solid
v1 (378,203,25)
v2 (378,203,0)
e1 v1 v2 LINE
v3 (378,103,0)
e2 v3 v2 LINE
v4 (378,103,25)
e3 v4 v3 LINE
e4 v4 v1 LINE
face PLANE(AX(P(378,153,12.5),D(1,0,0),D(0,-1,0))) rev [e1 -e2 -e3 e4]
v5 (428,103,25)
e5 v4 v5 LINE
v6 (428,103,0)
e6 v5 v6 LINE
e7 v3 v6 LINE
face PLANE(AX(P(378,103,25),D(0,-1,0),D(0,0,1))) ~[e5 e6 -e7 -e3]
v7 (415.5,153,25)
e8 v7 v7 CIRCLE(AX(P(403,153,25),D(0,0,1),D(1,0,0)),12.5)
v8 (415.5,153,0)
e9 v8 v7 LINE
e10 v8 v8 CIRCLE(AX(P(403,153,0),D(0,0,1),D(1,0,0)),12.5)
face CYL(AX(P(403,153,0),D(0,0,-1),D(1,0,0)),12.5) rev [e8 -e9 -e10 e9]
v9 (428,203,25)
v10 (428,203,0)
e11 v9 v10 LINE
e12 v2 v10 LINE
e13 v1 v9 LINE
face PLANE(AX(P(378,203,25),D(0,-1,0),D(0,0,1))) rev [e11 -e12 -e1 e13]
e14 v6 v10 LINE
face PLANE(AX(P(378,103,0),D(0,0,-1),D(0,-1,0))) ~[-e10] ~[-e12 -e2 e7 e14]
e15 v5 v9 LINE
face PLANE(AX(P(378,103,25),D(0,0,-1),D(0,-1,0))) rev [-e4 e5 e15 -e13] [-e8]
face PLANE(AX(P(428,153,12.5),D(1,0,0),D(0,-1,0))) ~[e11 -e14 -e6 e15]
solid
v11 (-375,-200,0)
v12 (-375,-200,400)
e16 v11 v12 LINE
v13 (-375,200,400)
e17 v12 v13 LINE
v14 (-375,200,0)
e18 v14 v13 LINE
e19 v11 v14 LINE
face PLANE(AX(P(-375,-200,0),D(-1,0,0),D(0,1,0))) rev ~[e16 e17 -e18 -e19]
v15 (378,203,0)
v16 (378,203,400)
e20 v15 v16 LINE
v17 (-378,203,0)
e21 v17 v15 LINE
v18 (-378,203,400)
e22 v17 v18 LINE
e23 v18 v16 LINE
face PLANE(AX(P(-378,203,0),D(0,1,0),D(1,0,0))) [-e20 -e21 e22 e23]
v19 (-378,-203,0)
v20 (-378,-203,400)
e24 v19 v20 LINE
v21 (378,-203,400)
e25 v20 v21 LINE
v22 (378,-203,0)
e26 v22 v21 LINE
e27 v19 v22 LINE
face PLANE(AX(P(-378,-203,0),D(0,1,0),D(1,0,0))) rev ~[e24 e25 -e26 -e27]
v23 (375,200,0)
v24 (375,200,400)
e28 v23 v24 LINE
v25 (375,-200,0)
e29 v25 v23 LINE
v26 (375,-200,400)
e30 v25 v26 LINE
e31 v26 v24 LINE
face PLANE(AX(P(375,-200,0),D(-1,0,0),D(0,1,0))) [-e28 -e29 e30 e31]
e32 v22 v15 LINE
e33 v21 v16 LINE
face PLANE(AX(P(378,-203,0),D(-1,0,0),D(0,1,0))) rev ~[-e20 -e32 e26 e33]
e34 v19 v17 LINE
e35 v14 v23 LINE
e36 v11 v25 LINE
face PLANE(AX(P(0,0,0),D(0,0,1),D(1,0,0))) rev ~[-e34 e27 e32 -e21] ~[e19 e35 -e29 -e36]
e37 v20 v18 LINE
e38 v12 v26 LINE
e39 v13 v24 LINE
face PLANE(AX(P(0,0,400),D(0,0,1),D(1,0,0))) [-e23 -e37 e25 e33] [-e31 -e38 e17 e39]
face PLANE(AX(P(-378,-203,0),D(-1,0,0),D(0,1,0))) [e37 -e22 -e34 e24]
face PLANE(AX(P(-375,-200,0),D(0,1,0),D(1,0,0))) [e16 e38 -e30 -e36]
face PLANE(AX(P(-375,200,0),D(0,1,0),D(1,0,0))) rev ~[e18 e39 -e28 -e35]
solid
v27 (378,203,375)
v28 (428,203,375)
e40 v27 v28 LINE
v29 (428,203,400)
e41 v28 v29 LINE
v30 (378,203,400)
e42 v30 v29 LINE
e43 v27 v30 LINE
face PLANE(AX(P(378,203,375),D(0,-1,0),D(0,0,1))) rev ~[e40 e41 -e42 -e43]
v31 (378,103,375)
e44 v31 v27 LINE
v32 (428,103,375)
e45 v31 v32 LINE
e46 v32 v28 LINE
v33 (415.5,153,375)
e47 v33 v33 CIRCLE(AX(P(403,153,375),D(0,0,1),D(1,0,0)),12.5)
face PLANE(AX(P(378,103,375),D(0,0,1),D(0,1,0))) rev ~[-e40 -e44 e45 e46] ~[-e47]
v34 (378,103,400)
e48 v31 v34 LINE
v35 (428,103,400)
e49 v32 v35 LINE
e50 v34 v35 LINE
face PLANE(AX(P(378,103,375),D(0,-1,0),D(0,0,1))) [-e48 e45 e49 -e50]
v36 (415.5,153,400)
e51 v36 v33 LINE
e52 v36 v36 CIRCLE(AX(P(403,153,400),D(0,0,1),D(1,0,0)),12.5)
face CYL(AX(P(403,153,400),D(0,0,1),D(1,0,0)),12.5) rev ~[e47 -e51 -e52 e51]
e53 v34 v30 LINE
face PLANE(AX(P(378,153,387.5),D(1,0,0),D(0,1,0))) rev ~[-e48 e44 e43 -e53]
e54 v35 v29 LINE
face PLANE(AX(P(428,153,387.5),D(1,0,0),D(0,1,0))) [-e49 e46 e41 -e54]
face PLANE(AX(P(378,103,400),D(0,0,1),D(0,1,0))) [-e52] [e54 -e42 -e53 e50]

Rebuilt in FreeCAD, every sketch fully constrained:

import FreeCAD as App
import Part
import Sketcher
from FreeCAD import Vector
Q = App.Units.Quantity

doc = App.newDocument("Part")
params = doc.addObject("Spreadsheet::Sheet", "Params")
for row, (alias, value) in enumerate([
    ("sketch1_width", "756 mm"),
    ("sketch1_width2", "750 mm"),
    ("sketch1_height", "406 mm"),
    ("sketch1_height2", "400 mm"),
    ("pad1_length", "400 mm"),
    ("sketch2_width", "100 mm"),
    ("sketch2_height", "25 mm"),
    ("pad2_length", "50 mm"),
    ("sketch3_diameter", "25 mm"),
    ("pocket1_length", "25 mm"),
], start=1):
    params.set(f"A{row}", alias)
    params.set(f"B{row}", "=" + value)
    params.setAlias(f"B{row}", alias)

body = doc.addObject("PartDesign::Body", "Body")

# Sketch on XY plane
sketch1 = body.newObject("Sketcher::SketchObject", "Sketch")
sketch1.AttachmentSupport = (doc.getObject("XY_Plane"), [""])
sketch1.MapMode = "FlatFace"
sketch1.addGeometry([
    Part.LineSegment(Vector(-378, 203, 0), Vector(-378, -203, 0)),  # 0
    Part.LineSegment(Vector(-378, -203, 0), Vector(378, -203, 0)),  # 1
    Part.LineSegment(Vector(378, -203, 0), Vector(378, 203, 0)),  # 2
    Part.LineSegment(Vector(378, 203, 0), Vector(-378, 203, 0)),  # 3
    Part.LineSegment(Vector(375, -200, 0), Vector(-375, -200, 0)),  # 4
    Part.LineSegment(Vector(-375, -200, 0), Vector(-375, 200, 0)),  # 5
    Part.LineSegment(Vector(-375, 200, 0), Vector(375, 200, 0)),  # 6
    Part.LineSegment(Vector(375, 200, 0), Vector(375, -200, 0)),  # 7
], False)
sketch1.addConstraint([
    Sketcher.Constraint("Coincident", 0, 2, 1, 1),
    Sketcher.Constraint("Coincident", 1, 2, 2, 1),
    Sketcher.Constraint("Coincident", 2, 2, 3, 1),
    Sketcher.Constraint("Coincident", 3, 2, 0, 1),
    Sketcher.Constraint("Coincident", 4, 2, 5, 1),
    Sketcher.Constraint("Coincident", 5, 2, 6, 1),
    Sketcher.Constraint("Coincident", 6, 2, 7, 1),
    Sketcher.Constraint("Coincident", 7, 2, 4, 1),
    Sketcher.Constraint("Vertical", 0),
    Sketcher.Constraint("Horizontal", 1),
    Sketcher.Constraint("Vertical", 2),
    Sketcher.Constraint("Horizontal", 3),
    Sketcher.Constraint("Horizontal", 4),
    Sketcher.Constraint("Vertical", 5),
    Sketcher.Constraint("Horizontal", 6),
    Sketcher.Constraint("Vertical", 7),
    Sketcher.Constraint("Symmetric", 0, 2, 2, 2, -1, 1),
    Sketcher.Constraint("Symmetric", 4, 2, 6, 2, -1, 1),
    Sketcher.Constraint("DistanceX", 1, 1, 1, 2, Q("756 mm")),
    Sketcher.Constraint("DistanceX", 4, 2, 4, 1, Q("750 mm")),
    Sketcher.Constraint("DistanceY", 0, 2, 0, 1, Q("406 mm")),
    Sketcher.Constraint("DistanceY", 5, 1, 5, 2, Q("400 mm")),
])
sketch1.setExpression("Constraints[18]", "Params.sketch1_width")
sketch1.setExpression("Constraints[19]", "Params.sketch1_width2")
sketch1.setExpression("Constraints[20]", "Params.sketch1_height")
sketch1.setExpression("Constraints[21]", "Params.sketch1_height2")
pad1 = body.newObject("PartDesign::Pad", "Pad")
pad1.Profile = sketch1
pad1.setExpression("Length", "Params.pad1_length")
body2 = doc.addObject("PartDesign::Body", "Body001")

# Sketch on YZ plane
sketch2 = body2.newObject("Sketcher::SketchObject", "Sketch001")
sketch2.AttachmentSupport = (doc.getObject("YZ_Plane001"), [""])
sketch2.MapMode = "FlatFace"
sketch2.AttachmentOffset = App.Placement(Vector(0, 0, 378), App.Rotation())
sketch2.addGeometry([
    Part.LineSegment(Vector(103, 400, 0), Vector(103, 375, 0)),
    Part.LineSegment(Vector(103, 375, 0), Vector(203, 375, 0)),
    Part.LineSegment(Vector(203, 375, 0), Vector(203, 400, 0)),
    Part.LineSegment(Vector(203, 400, 0), Vector(103, 400, 0)),
], False)
sketch2.addConstraint([
    Sketcher.Constraint("Coincident", 0, 2, 1, 1),
    Sketcher.Constraint("Coincident", 1, 2, 2, 1),
    Sketcher.Constraint("Coincident", 2, 2, 3, 1),
    Sketcher.Constraint("Coincident", 3, 2, 0, 1),
    Sketcher.Constraint("Vertical", 0),
    Sketcher.Constraint("Horizontal", 1),
    Sketcher.Constraint("Vertical", 2),
    Sketcher.Constraint("Horizontal", 3),
    Sketcher.Constraint("DistanceX", 1, 1, 1, 2, Q("100 mm")),
    Sketcher.Constraint("DistanceY", 0, 2, 0, 1, Q("25 mm")),
    Sketcher.Constraint("DistanceX", -1, 1, 0, 2, Q("103 mm")),
    Sketcher.Constraint("DistanceY", -1, 1, 0, 2, Q("375 mm")),
])
sketch2.setExpression("Constraints[8]", "Params.sketch2_width")
sketch2.setExpression("Constraints[9]", "Params.sketch2_height")
pad2 = body2.newObject("PartDesign::Pad", "Pad001")
pad2.Profile = sketch2
pad2.setExpression("Length", "Params.pad2_length")

# Sketch on XY plane
sketch3 = body2.newObject("Sketcher::SketchObject", "Sketch002")
sketch3.AttachmentSupport = (doc.getObject("XY_Plane001"), [""])
sketch3.MapMode = "FlatFace"
sketch3.AttachmentOffset = App.Placement(Vector(0, 0, 400), App.Rotation())
sketch3.addGeometry(Part.Circle(Vector(403, 153, 0), Vector(0, 0, 1), 12), False)
sketch3.addConstraint([
    Sketcher.Constraint("Diameter", 0, Q("25 mm")),
    Sketcher.Constraint("DistanceX", -1, 1, 0, 3, Q("403 mm")),
    Sketcher.Constraint("DistanceY", -1, 1, 0, 3, Q("153 mm")),
])
sketch3.setExpression("Constraints[0]", "Params.sketch3_diameter")
pocket1 = body2.newObject("PartDesign::Pocket", "Pocket")
pocket1.Profile = sketch3
pocket1.setExpression("Length", "Params.pocket1_length")
body3 = doc.addObject("PartDesign::Body", "Body002")
doc.recompute()

mirroring = doc.addObject("Part::Mirroring", "Mirroring")
mirroring.Source = body2
mirroring.Base = Vector(0, 0, 200)
mirroring.Normal = Vector(0, 0, 1)
body3.BaseFeature = mirroring
doc.recompute()
mirroring.Visibility = False

doc.recompute()
